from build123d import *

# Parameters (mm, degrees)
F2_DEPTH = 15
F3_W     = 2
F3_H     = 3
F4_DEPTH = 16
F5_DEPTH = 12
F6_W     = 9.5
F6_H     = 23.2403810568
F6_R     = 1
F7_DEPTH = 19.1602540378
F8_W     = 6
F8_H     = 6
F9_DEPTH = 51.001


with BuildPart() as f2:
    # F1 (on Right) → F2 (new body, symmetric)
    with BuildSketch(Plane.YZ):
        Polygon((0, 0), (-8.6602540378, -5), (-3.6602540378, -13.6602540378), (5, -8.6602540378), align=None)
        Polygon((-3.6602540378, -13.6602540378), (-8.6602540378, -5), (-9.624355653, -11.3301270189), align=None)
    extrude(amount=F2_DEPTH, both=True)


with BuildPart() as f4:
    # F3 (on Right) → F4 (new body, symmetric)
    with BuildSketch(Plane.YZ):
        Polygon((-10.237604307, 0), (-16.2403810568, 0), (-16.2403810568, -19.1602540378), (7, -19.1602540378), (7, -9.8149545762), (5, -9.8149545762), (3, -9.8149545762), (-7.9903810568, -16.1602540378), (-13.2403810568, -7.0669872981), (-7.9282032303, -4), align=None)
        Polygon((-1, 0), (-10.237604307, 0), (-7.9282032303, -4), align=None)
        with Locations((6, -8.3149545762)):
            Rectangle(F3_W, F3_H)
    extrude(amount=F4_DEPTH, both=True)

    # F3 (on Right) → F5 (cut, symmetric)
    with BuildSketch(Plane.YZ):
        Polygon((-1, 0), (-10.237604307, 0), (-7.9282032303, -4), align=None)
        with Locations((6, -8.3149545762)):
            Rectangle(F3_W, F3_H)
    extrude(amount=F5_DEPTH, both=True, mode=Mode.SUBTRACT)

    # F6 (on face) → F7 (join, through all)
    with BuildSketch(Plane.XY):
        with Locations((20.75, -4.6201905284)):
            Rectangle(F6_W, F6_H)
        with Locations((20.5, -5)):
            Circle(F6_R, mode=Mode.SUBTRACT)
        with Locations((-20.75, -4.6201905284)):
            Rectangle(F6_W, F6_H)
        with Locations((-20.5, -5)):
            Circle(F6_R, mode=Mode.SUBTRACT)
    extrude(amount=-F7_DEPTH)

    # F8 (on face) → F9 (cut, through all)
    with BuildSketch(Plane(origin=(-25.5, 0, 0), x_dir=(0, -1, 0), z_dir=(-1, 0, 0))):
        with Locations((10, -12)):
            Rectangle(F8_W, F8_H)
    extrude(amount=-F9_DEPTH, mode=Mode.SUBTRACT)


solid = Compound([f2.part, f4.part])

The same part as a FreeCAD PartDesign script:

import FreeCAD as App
import Part
import Sketcher
from FreeCAD import Vector
Q = App.Units.Quantity


def add_polygon(sketch, points):
    """Adds a closed chain of lines whose ends are joined by coincident constraints."""
    first, n = sketch.GeometryCount, len(points)
    for a, b in zip(points, points[1:] + points[:1]):
        sketch.addGeometry(Part.LineSegment(App.Vector(*a, 0), App.Vector(*b, 0)), False)
    for i in range(n):
        sketch.addConstraint(Sketcher.Constraint("Coincident", first + i, 2, first + (i + 1) % n, 1))

doc = App.newDocument("Part")
body = doc.addObject("PartDesign::Body", "Body")

sketch1 = body.newObject("Sketcher::SketchObject", "Sketch")
sketch1.AttachmentSupport = (doc.getObject("YZ_Plane"), [""])
sketch1.MapMode = "FlatFace"
add_polygon(sketch1, [(0, 0), (-8.660254, -5), (-9.624356, -11.330127), (-3.660254, -13.660254), (5, -8.660254)])
sketch1.addConstraint([
    Sketcher.Constraint("Coincident", 4, 2, -1, 1),
    Sketcher.Constraint("Parallel", 0, 3),
    Sketcher.Constraint("Perpendicular", 3, 4),
    Sketcher.Constraint("Equal", 1, 2),
    Sketcher.Constraint("Equal", 0, 3),
    Sketcher.Constraint("Equal", 3, 4),
    Sketcher.Constraint("Angle", 0, Q("-150 deg")),
    Sketcher.Constraint("Distance", 0, 10.0),
    Sketcher.Constraint("DistanceX", 1, 2, 0, 2, 0.964102),
])
pad1 = body.newObject("PartDesign::Pad", "Pad")
pad1.Profile = sketch1
pad1.Length = 30
pad1.Midplane = True
body2 = doc.addObject("PartDesign::Body", "Body001")

sketch2 = body2.newObject("Sketcher::SketchObject", "Sketch001")
sketch2.AttachmentSupport = (doc.getObject("YZ_Plane001"), [""])
sketch2.MapMode = "FlatFace"
add_polygon(sketch2, [(-16.240381, 0), (-16.240381, -19.160254), (7, -19.160254), (7, -6.814955), (5, -6.814955), (5, -9.814955), (3, -9.814955), (-7.990381, -16.160254), (-13.240381, -7.066987), (-1, 0)])
sketch2.addConstraint([
    Sketcher.Constraint("Vertical", 0),
    Sketcher.Constraint("Horizontal", 1),
    Sketcher.Constraint("Vertical", 2),
    Sketcher.Constraint("Horizontal", 3),
    Sketcher.Constraint("Vertical", 4),
    Sketcher.Constraint("Horizontal", 5),
    Sketcher.Constraint("Horizontal", 9),
    Sketcher.Constraint("PointOnObject", 8, 2, -1),
    Sketcher.Constraint("Perpendicular", 6, 7),
    Sketcher.Constraint("Perpendicular", 7, 8),
    Sketcher.Constraint("Equal", 3, 5),
    Sketcher.Constraint("DistanceX", 3, 2, 3, 1, 2.0),
    Sketcher.Constraint("DistanceY", 4, 2, 4, 1, 3.0),
    Sketcher.Constraint("Angle", 6, Q("-150 deg")),
    Sketcher.Constraint("DistanceX", -1, 1, 1, 2, 7.0),
    Sketcher.Constraint("DistanceX", 8, 2, -1, 1, 1.0),
    Sketcher.Constraint("DistanceY", 0, 2, 6, 2, 3.0),
    Sketcher.Constraint("DistanceX", 0, 2, 7, 2, 3.0),
    Sketcher.Constraint("Distance", 7, 10.5),
    Sketcher.Constraint("DistanceY", 2, 1, 2, 2, 12.345299),
])
pad2 = body2.newObject("PartDesign::Pad", "Pad001")
pad2.Profile = sketch2
pad2.Length = 32
pad2.Midplane = True

sketch3 = body2.newObject("Sketcher::SketchObject", "Sketch002")
sketch3.AttachmentSupport = (doc.getObject("YZ_Plane001"), [""])
sketch3.MapMode = "FlatFace"
add_polygon(sketch3, [(-1, 0), (-10.237604, 0), (-7.928203, -4)])
add_polygon(sketch3, [(5, -6.814955), (5, -9.814955), (7, -9.814955), (7, -6.814955)])
sketch3.addConstraint([
    Sketcher.Constraint("Horizontal", 0),
    Sketcher.Constraint("Vertical", 3),
    Sketcher.Constraint("Horizontal", 4),
    Sketcher.Constraint("Vertical", 5),
    Sketcher.Constraint("Horizontal", 6),
    Sketcher.Constraint("PointOnObject", 0, 2, -1),
    Sketcher.Constraint("Perpendicular", 1, 2),
    Sketcher.Constraint("DistanceX", 4, 1, 4, 2, 2.0),
    Sketcher.Constraint("DistanceY", 3, 2, 3, 1, 3.0),
    Sketcher.Constraint("Angle", 1, Q("-60 deg")),
    Sketcher.Constraint("Distance", 2, 8.0),
    Sketcher.Constraint("DistanceX", 2, 2, -1, 1, 1.0),
    Sketcher.Constraint("DistanceX", -1, 1, 3, 2, 5.0),
    Sketcher.Constraint("DistanceY", 3, 2, -1, 1, 9.814955),
])
pocket1 = body2.newObject("PartDesign::Pocket", "Pocket")
pocket1.Profile = sketch3
pocket1.Length = 24
pocket1.Midplane = True

sketch4 = body2.newObject("Sketcher::SketchObject", "Sketch003")
sketch4.AttachmentSupport = (doc.getObject("XY_Plane001"), [""])
sketch4.MapMode = "FlatFace"
add_polygon(sketch4, [(16, 7), (16, -16.240381), (25.5, -16.240381), (25.5, 7)])
sketch4.addGeometry(Part.Circle(Vector(20.5, -5, 0), Vector(0, 0, 1), 1), False)
add_polygon(sketch4, [(-25.5, 7), (-25.5, -16.240381), (-16, -16.240381), (-16, 7)])
sketch4.addGeometry(Part.Circle(Vector(-20.5, -5, 0), Vector(0, 0, 1), 1), False)
sketch4.addConstraint([
    Sketcher.Constraint("Vertical", 0),
    Sketcher.Constraint("Horizontal", 1),
    Sketcher.Constraint("Vertical", 2),
    Sketcher.Constraint("Horizontal", 3),
    Sketcher.Constraint("Vertical", 5),
    Sketcher.Constraint("Horizontal", 6),
    Sketcher.Constraint("Vertical", 7),
    Sketcher.Constraint("Horizontal", 8),
    Sketcher.Constraint("Equal", 4, 9),
    Sketcher.Constraint("Symmetric", 4, 3, 9, 3, -2),
    Sketcher.Constraint("Symmetric", 1, 2, 5, 2, -2),
    Sketcher.Constraint("Symmetric", 3, 2, 7, 2, -2),
    Sketcher.Constraint("Diameter", 4, 2.0),
    Sketcher.Constraint("DistanceX", 1, 1, 1, 2, 9.5),
    Sketcher.Constraint("DistanceY", 4, 3, -1, 1, 5.0),
    Sketcher.Constraint("DistanceX", -1, 1, 0, 2, 16.0),
    Sketcher.Constraint("DistanceY", -1, 1, 2, 2, 7.0),
    Sketcher.Constraint("DistanceX", 9, 3, 4, 3, 41.0),
    Sketcher.Constraint("DistanceY", 0, 2, 0, 1, 23.240381),
])
pad3 = body2.newObject("PartDesign::Pad", "Pad002")
pad3.Profile = sketch4
pad3.Type = "UpToLast"
pad3.Reversed = True

sketch5 = body2.newObject("Sketcher::SketchObject", "Sketch004")
sketch5.AttachmentSupport = (doc.getObject("YZ_Plane001"), [""])
sketch5.MapMode = "FlatFace"
sketch5.AttachmentOffset = App.Placement(Vector(0, 0, -25.5), App.Rotation())
add_polygon(sketch5, [(-7, -9), (-7, -15), (-13, -15), (-13, -9)])
sketch5.addConstraint([
    Sketcher.Constraint("Vertical", 0),
    Sketcher.Constraint("Horizontal", 1),
    Sketcher.Constraint("Vertical", 2),
    Sketcher.Constraint("Horizontal", 3),
    Sketcher.Constraint("Equal", 3, 0),
    Sketcher.Constraint("DistanceX", 1, 2, 1, 1, 6.0),
    Sketcher.Constraint("DistanceX", 0, 2, -1, 1, 7.0),
    Sketcher.Constraint("DistanceY", 0, 2, -1, 1, 15.0),
])
pocket2 = body2.newObject("PartDesign::Pocket", "Pocket001")
pocket2.Profile = sketch5
pocket2.Type = "ThroughAll"
pocket2.Reversed = True

doc.recompute()
